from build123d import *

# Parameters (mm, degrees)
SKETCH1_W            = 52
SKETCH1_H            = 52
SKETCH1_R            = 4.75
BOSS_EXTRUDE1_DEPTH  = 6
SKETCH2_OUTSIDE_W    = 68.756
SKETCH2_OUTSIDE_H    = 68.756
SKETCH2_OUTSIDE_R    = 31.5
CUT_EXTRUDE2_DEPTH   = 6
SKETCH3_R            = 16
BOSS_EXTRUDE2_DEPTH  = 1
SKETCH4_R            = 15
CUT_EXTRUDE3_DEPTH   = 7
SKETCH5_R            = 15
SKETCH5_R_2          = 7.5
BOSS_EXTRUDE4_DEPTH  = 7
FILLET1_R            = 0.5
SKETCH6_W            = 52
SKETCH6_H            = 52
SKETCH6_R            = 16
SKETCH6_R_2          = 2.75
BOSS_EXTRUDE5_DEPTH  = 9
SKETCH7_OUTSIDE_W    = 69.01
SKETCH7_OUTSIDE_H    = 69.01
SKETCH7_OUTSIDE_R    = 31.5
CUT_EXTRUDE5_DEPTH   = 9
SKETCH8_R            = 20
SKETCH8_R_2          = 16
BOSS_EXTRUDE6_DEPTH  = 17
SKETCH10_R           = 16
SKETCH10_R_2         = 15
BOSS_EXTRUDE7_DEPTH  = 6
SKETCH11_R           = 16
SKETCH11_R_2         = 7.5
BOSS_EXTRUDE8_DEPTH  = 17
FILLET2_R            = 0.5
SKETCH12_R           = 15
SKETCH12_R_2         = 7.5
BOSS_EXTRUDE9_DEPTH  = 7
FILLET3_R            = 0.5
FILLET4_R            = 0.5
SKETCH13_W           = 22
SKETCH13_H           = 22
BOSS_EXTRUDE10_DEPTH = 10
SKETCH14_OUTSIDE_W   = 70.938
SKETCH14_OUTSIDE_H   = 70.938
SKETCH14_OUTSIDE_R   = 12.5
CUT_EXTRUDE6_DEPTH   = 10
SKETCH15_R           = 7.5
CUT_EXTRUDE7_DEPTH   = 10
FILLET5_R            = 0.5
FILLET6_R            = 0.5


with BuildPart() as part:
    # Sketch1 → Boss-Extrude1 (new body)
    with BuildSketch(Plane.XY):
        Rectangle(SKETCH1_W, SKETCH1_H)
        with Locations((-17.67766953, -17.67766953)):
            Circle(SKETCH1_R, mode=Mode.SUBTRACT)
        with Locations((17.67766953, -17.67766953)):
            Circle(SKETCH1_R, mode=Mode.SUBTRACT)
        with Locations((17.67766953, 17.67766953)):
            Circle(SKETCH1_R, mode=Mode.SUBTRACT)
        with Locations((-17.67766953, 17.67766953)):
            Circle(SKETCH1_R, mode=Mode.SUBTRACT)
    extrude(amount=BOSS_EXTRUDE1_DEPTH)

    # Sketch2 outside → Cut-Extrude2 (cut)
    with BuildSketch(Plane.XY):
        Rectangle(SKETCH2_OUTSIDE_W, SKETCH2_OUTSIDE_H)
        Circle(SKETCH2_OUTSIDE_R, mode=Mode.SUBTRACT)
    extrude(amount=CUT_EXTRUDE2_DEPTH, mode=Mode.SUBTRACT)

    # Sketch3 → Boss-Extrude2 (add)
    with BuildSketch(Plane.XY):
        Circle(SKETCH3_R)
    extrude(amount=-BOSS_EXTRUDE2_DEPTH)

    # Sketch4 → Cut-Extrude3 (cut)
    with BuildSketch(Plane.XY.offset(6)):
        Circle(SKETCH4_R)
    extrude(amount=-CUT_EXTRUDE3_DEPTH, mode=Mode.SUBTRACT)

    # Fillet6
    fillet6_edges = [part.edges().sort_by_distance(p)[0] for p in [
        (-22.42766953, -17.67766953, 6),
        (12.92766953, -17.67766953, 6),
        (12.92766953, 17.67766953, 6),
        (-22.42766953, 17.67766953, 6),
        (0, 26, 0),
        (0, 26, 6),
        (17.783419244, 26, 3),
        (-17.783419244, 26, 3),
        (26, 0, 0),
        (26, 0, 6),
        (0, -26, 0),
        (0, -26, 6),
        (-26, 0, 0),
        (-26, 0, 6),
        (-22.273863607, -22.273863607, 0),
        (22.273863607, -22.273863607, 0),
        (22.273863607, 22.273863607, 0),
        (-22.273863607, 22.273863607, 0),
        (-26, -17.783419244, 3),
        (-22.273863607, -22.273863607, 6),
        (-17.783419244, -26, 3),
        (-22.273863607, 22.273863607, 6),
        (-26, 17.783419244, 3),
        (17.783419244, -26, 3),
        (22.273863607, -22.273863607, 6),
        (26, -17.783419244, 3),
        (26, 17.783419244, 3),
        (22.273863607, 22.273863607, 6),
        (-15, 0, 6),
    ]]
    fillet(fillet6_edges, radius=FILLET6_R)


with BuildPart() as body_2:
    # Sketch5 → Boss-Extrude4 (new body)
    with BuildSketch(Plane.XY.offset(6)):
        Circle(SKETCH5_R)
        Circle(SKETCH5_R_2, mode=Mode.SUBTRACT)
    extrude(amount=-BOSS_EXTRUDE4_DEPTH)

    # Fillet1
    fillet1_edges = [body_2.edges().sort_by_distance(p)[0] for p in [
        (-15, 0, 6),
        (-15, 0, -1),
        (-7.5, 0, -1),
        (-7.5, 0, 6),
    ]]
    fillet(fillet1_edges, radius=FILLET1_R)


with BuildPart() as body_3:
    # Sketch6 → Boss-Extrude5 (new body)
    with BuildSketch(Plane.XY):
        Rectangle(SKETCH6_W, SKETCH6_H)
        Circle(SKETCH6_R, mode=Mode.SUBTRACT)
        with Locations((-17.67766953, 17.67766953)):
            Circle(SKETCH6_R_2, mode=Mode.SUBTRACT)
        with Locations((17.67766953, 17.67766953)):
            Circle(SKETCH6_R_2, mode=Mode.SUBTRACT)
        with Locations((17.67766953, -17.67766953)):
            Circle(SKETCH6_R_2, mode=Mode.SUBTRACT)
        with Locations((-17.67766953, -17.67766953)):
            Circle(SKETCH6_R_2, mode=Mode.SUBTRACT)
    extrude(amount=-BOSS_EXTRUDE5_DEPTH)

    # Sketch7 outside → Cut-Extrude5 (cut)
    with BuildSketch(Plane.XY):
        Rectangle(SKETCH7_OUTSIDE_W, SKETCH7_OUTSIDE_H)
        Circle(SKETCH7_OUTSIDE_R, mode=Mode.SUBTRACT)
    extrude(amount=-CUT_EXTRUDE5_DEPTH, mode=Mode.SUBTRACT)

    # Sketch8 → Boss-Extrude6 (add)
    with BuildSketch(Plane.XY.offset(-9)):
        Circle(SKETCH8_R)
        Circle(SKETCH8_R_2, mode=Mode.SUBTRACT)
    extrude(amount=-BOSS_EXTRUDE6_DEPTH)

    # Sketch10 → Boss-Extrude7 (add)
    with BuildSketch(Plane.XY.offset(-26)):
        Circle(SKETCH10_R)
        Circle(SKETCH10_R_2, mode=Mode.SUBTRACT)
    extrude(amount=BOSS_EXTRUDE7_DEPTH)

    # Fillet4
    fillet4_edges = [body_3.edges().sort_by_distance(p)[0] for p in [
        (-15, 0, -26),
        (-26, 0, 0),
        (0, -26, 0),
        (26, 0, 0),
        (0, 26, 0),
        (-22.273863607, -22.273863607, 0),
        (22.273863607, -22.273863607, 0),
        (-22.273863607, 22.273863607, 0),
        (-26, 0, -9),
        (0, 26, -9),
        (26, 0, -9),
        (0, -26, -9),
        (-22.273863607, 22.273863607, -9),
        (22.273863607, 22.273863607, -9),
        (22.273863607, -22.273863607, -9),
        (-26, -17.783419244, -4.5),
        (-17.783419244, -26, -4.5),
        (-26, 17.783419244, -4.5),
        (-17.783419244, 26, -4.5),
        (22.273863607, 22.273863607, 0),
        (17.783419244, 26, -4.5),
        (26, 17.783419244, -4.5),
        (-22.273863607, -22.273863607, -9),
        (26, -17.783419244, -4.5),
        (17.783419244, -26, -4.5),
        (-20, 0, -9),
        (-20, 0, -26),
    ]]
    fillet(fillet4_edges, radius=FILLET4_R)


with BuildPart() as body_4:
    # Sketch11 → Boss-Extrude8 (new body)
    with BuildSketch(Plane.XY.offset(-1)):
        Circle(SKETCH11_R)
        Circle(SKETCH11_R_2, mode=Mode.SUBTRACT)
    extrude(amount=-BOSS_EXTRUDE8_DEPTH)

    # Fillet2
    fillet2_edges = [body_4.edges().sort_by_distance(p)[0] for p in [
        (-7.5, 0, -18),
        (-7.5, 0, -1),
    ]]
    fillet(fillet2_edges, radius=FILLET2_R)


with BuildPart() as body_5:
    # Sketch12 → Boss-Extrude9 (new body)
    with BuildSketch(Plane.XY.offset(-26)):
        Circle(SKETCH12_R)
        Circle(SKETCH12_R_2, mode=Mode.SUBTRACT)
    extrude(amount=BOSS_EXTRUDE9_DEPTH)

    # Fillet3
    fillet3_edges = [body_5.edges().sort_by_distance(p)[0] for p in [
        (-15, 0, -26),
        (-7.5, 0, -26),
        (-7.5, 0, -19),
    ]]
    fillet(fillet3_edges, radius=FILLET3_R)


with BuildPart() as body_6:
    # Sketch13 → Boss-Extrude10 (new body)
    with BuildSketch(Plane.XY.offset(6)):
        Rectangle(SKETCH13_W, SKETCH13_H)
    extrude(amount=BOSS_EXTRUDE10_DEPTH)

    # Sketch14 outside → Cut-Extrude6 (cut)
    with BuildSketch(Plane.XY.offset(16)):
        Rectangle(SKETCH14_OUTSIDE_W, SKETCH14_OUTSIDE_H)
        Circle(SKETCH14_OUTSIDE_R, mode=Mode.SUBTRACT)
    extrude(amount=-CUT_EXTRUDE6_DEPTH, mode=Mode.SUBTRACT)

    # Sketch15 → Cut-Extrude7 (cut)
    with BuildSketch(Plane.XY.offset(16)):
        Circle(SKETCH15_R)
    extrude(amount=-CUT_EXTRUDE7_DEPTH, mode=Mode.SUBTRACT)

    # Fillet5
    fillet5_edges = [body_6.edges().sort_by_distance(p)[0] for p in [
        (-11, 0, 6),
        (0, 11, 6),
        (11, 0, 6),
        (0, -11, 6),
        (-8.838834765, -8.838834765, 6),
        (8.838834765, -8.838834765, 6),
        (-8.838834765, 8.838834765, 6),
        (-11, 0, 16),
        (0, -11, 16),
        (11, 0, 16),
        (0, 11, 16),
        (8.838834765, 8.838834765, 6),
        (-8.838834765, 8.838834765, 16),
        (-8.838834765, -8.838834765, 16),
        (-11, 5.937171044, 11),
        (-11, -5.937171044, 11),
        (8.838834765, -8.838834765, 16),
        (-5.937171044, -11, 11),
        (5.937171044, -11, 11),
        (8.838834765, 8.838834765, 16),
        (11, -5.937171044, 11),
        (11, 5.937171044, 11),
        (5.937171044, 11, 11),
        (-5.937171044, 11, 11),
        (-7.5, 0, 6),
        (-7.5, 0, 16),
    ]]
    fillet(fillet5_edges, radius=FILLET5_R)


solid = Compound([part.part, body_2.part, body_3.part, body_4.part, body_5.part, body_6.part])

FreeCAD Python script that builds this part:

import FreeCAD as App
import Part
import Sketcher
from FreeCAD import Vector
Q = App.Units.Quantity


def edges_at(feature, points):
    """Names of the edges that pass closest to the given points."""
    edges = feature.Shape.Edges
    near = lambda p: min(range(len(edges)), key=lambda i: edges[i].distToShape(Part.Vertex(*p))[0])
    return sorted({f"Edge{near(p) + 1}" for p in points})

doc = App.newDocument("Part")
body = doc.addObject("PartDesign::Body", "Body")

# Sketch on XY plane
sketch1 = body.newObject("Sketcher::SketchObject", "Sketch")
sketch1.AttachmentSupport = (doc.getObject("XY_Plane"), [""])
sketch1.MapMode = "FlatFace"
sketch1.addGeometry(Part.LineSegment(Vector(-26, 26, 0), Vector(-26, -26, 0)), False)
sketch1.addGeometry(Part.LineSegment(Vector(-26, -26, 0), Vector(26, -26, 0)), False)
sketch1.addGeometry(Part.LineSegment(Vector(26, -26, 0), Vector(26, 26, 0)), False)
sketch1.addGeometry(Part.LineSegment(Vector(26, 26, 0), Vector(-26, 26, 0)), False)
sketch1.addGeometry(Part.Circle(Vector(-17.7, -17.7, 0), Vector(0, 0, 1), 4.8), False)
sketch1.addGeometry(Part.Circle(Vector(17.7, -17.7, 0), Vector(0, 0, 1), 4.8), False)
sketch1.addGeometry(Part.Circle(Vector(-17.7, 17.7, 0), Vector(0, 0, 1), 4.8), False)
sketch1.addGeometry(Part.Circle(Vector(17.7, 17.7, 0), Vector(0, 0, 1), 4.8), False)
sketch1.addConstraint(Sketcher.Constraint("Coincident", 0, 2, 1, 1))
sketch1.addConstraint(Sketcher.Constraint("Coincident", 1, 2, 2, 1))
sketch1.addConstraint(Sketcher.Constraint("Coincident", 2, 2, 3, 1))
sketch1.addConstraint(Sketcher.Constraint("Coincident", 3, 2, 0, 1))
sketch1.addConstraint(Sketcher.Constraint("Vertical", 0))
sketch1.addConstraint(Sketcher.Constraint("Horizontal", 1))
sketch1.addConstraint(Sketcher.Constraint("Vertical", 2))
sketch1.addConstraint(Sketcher.Constraint("Horizontal", 3))
sketch1.addConstraint(Sketcher.Constraint("Equal", 4, 5))
sketch1.addConstraint(Sketcher.Constraint("Equal", 5, 6))
sketch1.addConstraint(Sketcher.Constraint("Equal", 6, 7))
sketch1.addConstraint(Sketcher.Constraint("Symmetric", 5, 3, 6, 3, -1, 1))
sketch1.addConstraint(Sketcher.Constraint("Symmetric", 4, 3, 7, 3, -1, 1))
sketch1.addConstraint(Sketcher.Constraint("Symmetric", 0, 2, 2, 2, -1, 1))
sketch1.addConstraint(Sketcher.Constraint("Symmetric", 4, 3, 5, 3, -2))
sketch1.addConstraint(Sketcher.Constraint("Equal", 3, 0))
sketch1.addConstraint(Sketcher.Constraint("Diameter", 4, Q("9.5 mm")))
sketch1.addConstraint(Sketcher.Constraint("DistanceX", 1, 1, 1, 2, Q("52 mm")))
sketch1.addConstraint(Sketcher.Constraint("DistanceX", 4, 3, -1, 1, Q("17.67767 mm")))
sketch1.addConstraint(Sketcher.Constraint("DistanceY", 4, 3, -1, 1, Q("17.67767 mm")))
pad1 = body.newObject("PartDesign::Pad", "Pad")
pad1.Profile = sketch1
pad1.Length = 6

# Sketch on XY plane
sketch2 = body.newObject("Sketcher::SketchObject", "Sketch001")
sketch2.AttachmentSupport = (doc.getObject("XY_Plane"), [""])
sketch2.MapMode = "FlatFace"
sketch2.addGeometry(Part.LineSegment(Vector(-34, 34, 0), Vector(-34, -34, 0)), False)
sketch2.addGeometry(Part.LineSegment(Vector(-34, -34, 0), Vector(34, -34, 0)), False)
sketch2.addGeometry(Part.LineSegment(Vector(34, -34, 0), Vector(34, 34, 0)), False)
sketch2.addGeometry(Part.LineSegment(Vector(34, 34, 0), Vector(-34, 34, 0)), False)
sketch2.addGeometry(Part.Circle(Vector(0, 0, 0), Vector(0, 0, 1), 32), False)
sketch2.addConstraint(Sketcher.Constraint("Coincident", 0, 2, 1, 1))
sketch2.addConstraint(Sketcher.Constraint("Coincident", 1, 2, 2, 1))
sketch2.addConstraint(Sketcher.Constraint("Coincident", 2, 2, 3, 1))
sketch2.addConstraint(Sketcher.Constraint("Coincident", 3, 2, 0, 1))
sketch2.addConstraint(Sketcher.Constraint("Vertical", 0))
sketch2.addConstraint(Sketcher.Constraint("Horizontal", 1))
sketch2.addConstraint(Sketcher.Constraint("Vertical", 2))
sketch2.addConstraint(Sketcher.Constraint("Horizontal", 3))
sketch2.addConstraint(Sketcher.Constraint("Coincident", 4, 3, -1, 1))
sketch2.addConstraint(Sketcher.Constraint("Symmetric", 0, 2, 2, 2, -1, 1))
sketch2.addConstraint(Sketcher.Constraint("Equal", 3, 0))
sketch2.addConstraint(Sketcher.Constraint("Diameter", 4, Q("63 mm")))
sketch2.addConstraint(Sketcher.Constraint("DistanceX", 1, 1, 1, 2, Q("68.756 mm")))
pocket1 = body.newObject("PartDesign::Pocket", "Pocket")
pocket1.Profile = sketch2
pocket1.Length = 6
pocket1.Reversed = True

# Sketch on XY plane
sketch3 = body.newObject("Sketcher::SketchObject", "Sketch002")
sketch3.AttachmentSupport = (doc.getObject("XY_Plane"), [""])
sketch3.MapMode = "FlatFace"
sketch3.addGeometry(Part.Circle(Vector(0, 0, 0), Vector(0, 0, 1), 16), False)
sketch3.addConstraint(Sketcher.Constraint("Coincident", 0, 3, -1, 1))
sketch3.addConstraint(Sketcher.Constraint("Diameter", 0, Q("32 mm")))
pad2 = body.newObject("PartDesign::Pad", "Pad001")
pad2.Profile = sketch3
pad2.Length = 1
pad2.Reversed = True

# Sketch on XY plane
sketch4 = body.newObject("Sketcher::SketchObject", "Sketch003")
sketch4.AttachmentSupport = (doc.getObject("XY_Plane"), [""])
sketch4.MapMode = "FlatFace"
sketch4.AttachmentOffset = App.Placement(Vector(0, 0, 6), App.Rotation())
sketch4.addGeometry(Part.Circle(Vector(0, 0, 0), Vector(0, 0, 1), 15), False)
sketch4.addConstraint(Sketcher.Constraint("Coincident", 0, 3, -1, 1))
sketch4.addConstraint(Sketcher.Constraint("Diameter", 0, Q("30 mm")))
pocket2 = body.newObject("PartDesign::Pocket", "Pocket001")
pocket2.Profile = sketch4
pocket2.Length = 7
doc.recompute()

fillet = body.newObject("PartDesign::Fillet", "Fillet")
fillet.Base = (pocket2, edges_at(pocket2, [
    (-22.428, -17.678, 6),
    (12.928, -17.678, 6),
    (12.928, 17.678, 6),
    (-22.428, 17.678, 6),
    (0, 26, 0),
    (0, 26, 6),
    (17.783, 26, 3),
    (-17.783, 26, 3),
    (26, 0, 0),
    (26, 0, 6),
    (0, -26, 0),
    (0, -26, 6),
    (-26, 0, 0),
    (-26, 0, 6),
    (-22.274, -22.274, 0),
    (22.274, -22.274, 0),
    (22.274, 22.274, 0),
    (-22.274, 22.274, 0),
    (-26, -17.783, 3),
    (-22.274, -22.274, 6),
    (-17.783, -26, 3),
    (-22.274, 22.274, 6),
    (-26, 17.783, 3),
    (17.783, -26, 3),
    (22.274, -22.274, 6),
    (26, -17.783, 3),
    (26, 17.783, 3),
    (22.274, 22.274, 6),
    (-15, 0, 6),
]))
fillet.Radius = 0.5
body2 = doc.addObject("PartDesign::Body", "Body001")

# Sketch on XY plane
sketch5 = body2.newObject("Sketcher::SketchObject", "Sketch004")
sketch5.AttachmentSupport = (doc.getObject("XY_Plane001"), [""])
sketch5.MapMode = "FlatFace"
sketch5.AttachmentOffset = App.Placement(Vector(0, 0, 6), App.Rotation())
sketch5.addGeometry(Part.Circle(Vector(0, 0, 0), Vector(0, 0, 1), 15), False)
sketch5.addGeometry(Part.Circle(Vector(0, 0, 0), Vector(0, 0, 1), 8), False)
sketch5.addConstraint(Sketcher.Constraint("Coincident", 0, 3, -1, 1))
sketch5.addConstraint(Sketcher.Constraint("Coincident", 1, 3, -1, 1))
sketch5.addConstraint(Sketcher.Constraint("Diameter", 0, Q("30 mm")))
sketch5.addConstraint(Sketcher.Constraint("Diameter", 1, Q("15 mm")))
pad3 = body2.newObject("PartDesign::Pad", "Pad002")
pad3.Profile = sketch5
pad3.Length = 7
pad3.Reversed = True
doc.recompute()

fillet2 = body2.newObject("PartDesign::Fillet", "Fillet001")
fillet2.Base = (pad3, edges_at(pad3, [
    (-15, 0, 6),
    (-15, 0, -1),
    (-7.5, 0, -1),
    (-7.5, 0, 6),
]))
fillet2.Radius = 0.5
body3 = doc.addObject("PartDesign::Body", "Body002")

# Sketch on XY plane
sketch6 = body3.newObject("Sketcher::SketchObject", "Sketch005")
sketch6.AttachmentSupport = (doc.getObject("XY_Plane002"), [""])
sketch6.MapMode = "FlatFace"
sketch6.addGeometry(Part.LineSegment(Vector(-26, 26, 0), Vector(-26, -26, 0)), False)
sketch6.addGeometry(Part.LineSegment(Vector(-26, -26, 0), Vector(26, -26, 0)), False)
sketch6.addGeometry(Part.LineSegment(Vector(26, -26, 0), Vector(26, 26, 0)), False)
sketch6.addGeometry(Part.LineSegment(Vector(26, 26, 0), Vector(-26, 26, 0)), False)
sketch6.addGeometry(Part.Circle(Vector(-17.7, -17.7, 0), Vector(0, 0, 1), 2.8), False)
sketch6.addGeometry(Part.Circle(Vector(17.7, -17.7, 0), Vector(0, 0, 1), 2.8), False)
sketch6.addGeometry(Part.Circle(Vector(-17.7, 17.7, 0), Vector(0, 0, 1), 2.8), False)
sketch6.addGeometry(Part.Circle(Vector(0, 0, 0), Vector(0, 0, 1), 16), False)
sketch6.addGeometry(Part.Circle(Vector(17.7, 17.7, 0), Vector(0, 0, 1), 2.8), False)
sketch6.addConstraint(Sketcher.Constraint("Coincident", 0, 2, 1, 1))
sketch6.addConstraint(Sketcher.Constraint("Coincident", 1, 2, 2, 1))
sketch6.addConstraint(Sketcher.Constraint("Coincident", 2, 2, 3, 1))
sketch6.addConstraint(Sketcher.Constraint("Coincident", 3, 2, 0, 1))
sketch6.addConstraint(Sketcher.Constraint("Vertical", 0))
sketch6.addConstraint(Sketcher.Constraint("Horizontal", 1))
sketch6.addConstraint(Sketcher.Constraint("Vertical", 2))
sketch6.addConstraint(Sketcher.Constraint("Horizontal", 3))
sketch6.addConstraint(Sketcher.Constraint("Coincident", 7, 3, -1, 1))
sketch6.addConstraint(Sketcher.Constraint("Equal", 4, 5))
sketch6.addConstraint(Sketcher.Constraint("Equal", 5, 6))
sketch6.addConstraint(Sketcher.Constraint("Equal", 6, 8))
sketch6.addConstraint(Sketcher.Constraint("Symmetric", 5, 3, 6, 3, -1, 1))
sketch6.addConstraint(Sketcher.Constraint("Symmetric", 4, 3, 8, 3, -1, 1))
sketch6.addConstraint(Sketcher.Constraint("Symmetric", 0, 2, 2, 2, -1, 1))
sketch6.addConstraint(Sketcher.Constraint("Symmetric", 4, 3, 5, 3, -2))
sketch6.addConstraint(Sketcher.Constraint("Equal", 3, 0))
sketch6.addConstraint(Sketcher.Constraint("Diameter", 7, Q("32 mm")))
sketch6.addConstraint(Sketcher.Constraint("Diameter", 4, Q("5.5 mm")))
sketch6.addConstraint(Sketcher.Constraint("DistanceX", 1, 1, 1, 2, Q("52 mm")))
sketch6.addConstraint(Sketcher.Constraint("DistanceX", 4, 3, -1, 1, Q("17.67767 mm")))
sketch6.addConstraint(Sketcher.Constraint("DistanceY", 4, 3, -1, 1, Q("17.67767 mm")))
pad4 = body3.newObject("PartDesign::Pad", "Pad003")
pad4.Profile = sketch6
pad4.Length = 9
pad4.Reversed = True

# Sketch on XY plane
sketch7 = body3.newObject("Sketcher::SketchObject", "Sketch006")
sketch7.AttachmentSupport = (doc.getObject("XY_Plane002"), [""])
sketch7.MapMode = "FlatFace"
sketch7.addGeometry(Part.LineSegment(Vector(-35, 35, 0), Vector(-35, -35, 0)), False)
sketch7.addGeometry(Part.LineSegment(Vector(-35, -35, 0), Vector(35, -35, 0)), False)
sketch7.addGeometry(Part.LineSegment(Vector(35, -35, 0), Vector(35, 35, 0)), False)
sketch7.addGeometry(Part.LineSegment(Vector(35, 35, 0), Vector(-35, 35, 0)), False)
sketch7.addGeometry(Part.Circle(Vector(0, 0, 0), Vector(0, 0, 1), 32), False)
sketch7.addConstraint(Sketcher.Constraint("Coincident", 0, 2, 1, 1))
sketch7.addConstraint(Sketcher.Constraint("Coincident", 1, 2, 2, 1))
sketch7.addConstraint(Sketcher.Constraint("Coincident", 2, 2, 3, 1))
sketch7.addConstraint(Sketcher.Constraint("Coincident", 3, 2, 0, 1))
sketch7.addConstraint(Sketcher.Constraint("Vertical", 0))
sketch7.addConstraint(Sketcher.Constraint("Horizontal", 1))
sketch7.addConstraint(Sketcher.Constraint("Vertical", 2))
sketch7.addConstraint(Sketcher.Constraint("Horizontal", 3))
sketch7.addConstraint(Sketcher.Constraint("Coincident", 4, 3, -1, 1))
sketch7.addConstraint(Sketcher.Constraint("Symmetric", 0, 2, 2, 2, -1, 1))
sketch7.addConstraint(Sketcher.Constraint("Equal", 3, 0))
sketch7.addConstraint(Sketcher.Constraint("Diameter", 4, Q("63 mm")))
sketch7.addConstraint(Sketcher.Constraint("DistanceX", 1, 1, 1, 2, Q("69.01 mm")))
pocket3 = body3.newObject("PartDesign::Pocket", "Pocket002")
pocket3.Profile = sketch7
pocket3.Length = 9

# Sketch on XY plane
sketch8 = body3.newObject("Sketcher::SketchObject", "Sketch007")
sketch8.AttachmentSupport = (doc.getObject("XY_Plane002"), [""])
sketch8.MapMode = "FlatFace"
sketch8.AttachmentOffset = App.Placement(Vector(0, 0, -9), App.Rotation())
sketch8.addGeometry(Part.Circle(Vector(0, 0, 0), Vector(0, 0, 1), 20), False)
sketch8.addGeometry(Part.Circle(Vector(0, 0, 0), Vector(0, 0, 1), 16), False)
sketch8.addConstraint(Sketcher.Constraint("Coincident", 0, 3, -1, 1))
sketch8.addConstraint(Sketcher.Constraint("Coincident", 1, 3, -1, 1))
sketch8.addConstraint(Sketcher.Constraint("Diameter", 0, Q("40 mm")))
sketch8.addConstraint(Sketcher.Constraint("Diameter", 1, Q("32 mm")))
pad5 = body3.newObject("PartDesign::Pad", "Pad004")
pad5.Profile = sketch8
pad5.Length = 17
pad5.Reversed = True

# Sketch on XY plane
sketch9 = body3.newObject("Sketcher::SketchObject", "Sketch008")
sketch9.AttachmentSupport = (doc.getObject("XY_Plane002"), [""])
sketch9.MapMode = "FlatFace"
sketch9.AttachmentOffset = App.Placement(Vector(0, 0, -26), App.Rotation())
sketch9.addGeometry(Part.Circle(Vector(0, 0, 0), Vector(0, 0, 1), 16), False)
sketch9.addGeometry(Part.Circle(Vector(0, 0, 0), Vector(0, 0, 1), 15), False)
sketch9.addConstraint(Sketcher.Constraint("Coincident", 0, 3, -1, 1))
sketch9.addConstraint(Sketcher.Constraint("Coincident", 1, 3, -1, 1))
sketch9.addConstraint(Sketcher.Constraint("Diameter", 0, Q("32 mm")))
sketch9.addConstraint(Sketcher.Constraint("Diameter", 1, Q("30 mm")))
pad6 = body3.newObject("PartDesign::Pad", "Pad005")
pad6.Profile = sketch9
pad6.Length = 6
doc.recompute()

fillet3 = body3.newObject("PartDesign::Fillet", "Fillet002")
fillet3.Base = (pad6, edges_at(pad6, [
    (-15, 0, -26),
    (-26, 0, 0),
    (0, -26, 0),
    (26, 0, 0),
    (0, 26, 0),
    (-22.274, -22.274, 0),
    (22.274, -22.274, 0),
    (-22.274, 22.274, 0),
    (-26, 0, -9),
    (0, 26, -9),
    (26, 0, -9),
    (0, -26, -9),
    (-22.274, 22.274, -9),
    (22.274, 22.274, -9),
    (22.274, -22.274, -9),
    (-26, -17.783, -4.5),
    (-17.783, -26, -4.5),
    (-26, 17.783, -4.5),
    (-17.783, 26, -4.5),
    (22.274, 22.274, 0),
    (17.783, 26, -4.5),
    (26, 17.783, -4.5),
    (-22.274, -22.274, -9),
    (26, -17.783, -4.5),
    (17.783, -26, -4.5),
    (-20, 0, -9),
    (-20, 0, -26),
]))
fillet3.Radius = 0.5
body4 = doc.addObject("PartDesign::Body", "Body003")

# Sketch on XY plane
sketch10 = body4.newObject("Sketcher::SketchObject", "Sketch009")
sketch10.AttachmentSupport = (doc.getObject("XY_Plane003"), [""])
sketch10.MapMode = "FlatFace"
sketch10.AttachmentOffset = App.Placement(Vector(0, 0, -1), App.Rotation())
sketch10.addGeometry(Part.Circle(Vector(0, 0, 0), Vector(0, 0, 1), 16), False)
sketch10.addGeometry(Part.Circle(Vector(0, 0, 0), Vector(0, 0, 1), 8), False)
sketch10.addConstraint(Sketcher.Constraint("Coincident", 0, 3, -1, 1))
sketch10.addConstraint(Sketcher.Constraint("Coincident", 1, 3, -1, 1))
sketch10.addConstraint(Sketcher.Constraint("Diameter", 0, Q("32 mm")))
sketch10.addConstraint(Sketcher.Constraint("Diameter", 1, Q("15 mm")))
pad7 = body4.newObject("PartDesign::Pad", "Pad006")
pad7.Profile = sketch10
pad7.Length = 17
pad7.Reversed = True
doc.recompute()

fillet4 = body4.newObject("PartDesign::Fillet", "Fillet003")
fillet4.Base = (pad7, edges_at(pad7, [(-7.5, 0, -18), (-7.5, 0, -1)]))
fillet4.Radius = 0.5
body5 = doc.addObject("PartDesign::Body", "Body004")

# Sketch on XY plane
sketch11 = body5.newObject("Sketcher::SketchObject", "Sketch010")
sketch11.AttachmentSupport = (doc.getObject("XY_Plane004"), [""])
sketch11.MapMode = "FlatFace"
sketch11.AttachmentOffset = App.Placement(Vector(0, 0, -26), App.Rotation())
sketch11.addGeometry(Part.Circle(Vector(0, 0, 0), Vector(0, 0, 1), 15), False)
sketch11.addGeometry(Part.Circle(Vector(0, 0, 0), Vector(0, 0, 1), 8), False)
sketch11.addConstraint(Sketcher.Constraint("Coincident", 0, 3, -1, 1))
sketch11.addConstraint(Sketcher.Constraint("Coincident", 1, 3, -1, 1))
sketch11.addConstraint(Sketcher.Constraint("Diameter", 0, Q("30 mm")))
sketch11.addConstraint(Sketcher.Constraint("Diameter", 1, Q("15 mm")))
pad8 = body5.newObject("PartDesign::Pad", "Pad007")
pad8.Profile = sketch11
pad8.Length = 7
doc.recompute()

fillet5 = body5.newObject("PartDesign::Fillet", "Fillet004")
fillet5.Base = (pad8, edges_at(pad8, [(-15, 0, -26), (-7.5, 0, -26), (-7.5, 0, -19)]))
fillet5.Radius = 0.5
body6 = doc.addObject("PartDesign::Body", "Body005")

# Sketch on XY plane
sketch12 = body6.newObject("Sketcher::SketchObject", "Sketch011")
sketch12.AttachmentSupport = (doc.getObject("XY_Plane005"), [""])
sketch12.MapMode = "FlatFace"
sketch12.AttachmentOffset = App.Placement(Vector(0, 0, 6), App.Rotation())
sketch12.addGeometry(Part.LineSegment(Vector(-11, 11, 0), Vector(-11, -11, 0)), False)
sketch12.addGeometry(Part.LineSegment(Vector(-11, -11, 0), Vector(11, -11, 0)), False)
sketch12.addGeometry(Part.LineSegment(Vector(11, -11, 0), Vector(11, 11, 0)), False)
sketch12.addGeometry(Part.LineSegment(Vector(11, 11, 0), Vector(-11, 11, 0)), False)
sketch12.addConstraint(Sketcher.Constraint("Coincident", 0, 2, 1, 1))
sketch12.addConstraint(Sketcher.Constraint("Coincident", 1, 2, 2, 1))
sketch12.addConstraint(Sketcher.Constraint("Coincident", 2, 2, 3, 1))
sketch12.addConstraint(Sketcher.Constraint("Coincident", 3, 2, 0, 1))
sketch12.addConstraint(Sketcher.Constraint("Vertical", 0))
sketch12.addConstraint(Sketcher.Constraint("Horizontal", 1))
sketch12.addConstraint(Sketcher.Constraint("Vertical", 2))
sketch12.addConstraint(Sketcher.Constraint("Horizontal", 3))
sketch12.addConstraint(Sketcher.Constraint("Symmetric", 0, 2, 2, 2, -1, 1))
sketch12.addConstraint(Sketcher.Constraint("Equal", 3, 0))
sketch12.addConstraint(Sketcher.Constraint("DistanceX", 1, 1, 1, 2, Q("22 mm")))
pad9 = body6.newObject("PartDesign::Pad", "Pad008")
pad9.Profile = sketch12
pad9.Length = 10

# Sketch on XY plane
sketch13 = body6.newObject("Sketcher::SketchObject", "Sketch012")
sketch13.AttachmentSupport = (doc.getObject("XY_Plane005"), [""])
sketch13.MapMode = "FlatFace"
sketch13.AttachmentOffset = App.Placement(Vector(0, 0, 16), App.Rotation())
sketch13.addGeometry(Part.LineSegment(Vector(-35, 35, 0), Vector(-35, -35, 0)), False)
sketch13.addGeometry(Part.LineSegment(Vector(-35, -35, 0), Vector(35, -35, 0)), False)
sketch13.addGeometry(Part.LineSegment(Vector(35, -35, 0), Vector(35, 35, 0)), False)
sketch13.addGeometry(Part.LineSegment(Vector(35, 35, 0), Vector(-35, 35, 0)), False)
sketch13.addGeometry(Part.Circle(Vector(0, 0, 0), Vector(0, 0, 1), 12), False)
sketch13.addConstraint(Sketcher.Constraint("Coincident", 0, 2, 1, 1))
sketch13.addConstraint(Sketcher.Constraint("Coincident", 1, 2, 2, 1))
sketch13.addConstraint(Sketcher.Constraint("Coincident", 2, 2, 3, 1))
sketch13.addConstraint(Sketcher.Constraint("Coincident", 3, 2, 0, 1))
sketch13.addConstraint(Sketcher.Constraint("Vertical", 0))
sketch13.addConstraint(Sketcher.Constraint("Horizontal", 1))
sketch13.addConstraint(Sketcher.Constraint("Vertical", 2))
sketch13.addConstraint(Sketcher.Constraint("Horizontal", 3))
sketch13.addConstraint(Sketcher.Constraint("Coincident", 4, 3, -1, 1))
sketch13.addConstraint(Sketcher.Constraint("Symmetric", 0, 2, 2, 2, -1, 1))
sketch13.addConstraint(Sketcher.Constraint("Equal", 3, 0))
sketch13.addConstraint(Sketcher.Constraint("Diameter", 4, Q("25 mm")))
sketch13.addConstraint(Sketcher.Constraint("DistanceX", 1, 1, 1, 2, Q("70.938 mm")))
pocket4 = body6.newObject("PartDesign::Pocket", "Pocket003")
pocket4.Profile = sketch13
pocket4.Length = 10

# Sketch on XY plane
sketch14 = body6.newObject("Sketcher::SketchObject", "Sketch013")
sketch14.AttachmentSupport = (doc.getObject("XY_Plane005"), [""])
sketch14.MapMode = "FlatFace"
sketch14.AttachmentOffset = App.Placement(Vector(0, 0, 16), App.Rotation())
sketch14.addGeometry(Part.Circle(Vector(0, 0, 0), Vector(0, 0, 1), 8), False)
sketch14.addConstraint(Sketcher.Constraint("Coincident", 0, 3, -1, 1))
sketch14.addConstraint(Sketcher.Constraint("Diameter", 0, Q("15 mm")))
pocket5 = body6.newObject("PartDesign::Pocket", "Pocket004")
pocket5.Profile = sketch14
pocket5.Length = 10
doc.recompute()

fillet6 = body6.newObject("PartDesign::Fillet", "Fillet005")
fillet6.Base = (pocket5, ["Edge1"])
fillet6.UseAllEdges = True
fillet6.Radius = 0.5

doc.recompute()
